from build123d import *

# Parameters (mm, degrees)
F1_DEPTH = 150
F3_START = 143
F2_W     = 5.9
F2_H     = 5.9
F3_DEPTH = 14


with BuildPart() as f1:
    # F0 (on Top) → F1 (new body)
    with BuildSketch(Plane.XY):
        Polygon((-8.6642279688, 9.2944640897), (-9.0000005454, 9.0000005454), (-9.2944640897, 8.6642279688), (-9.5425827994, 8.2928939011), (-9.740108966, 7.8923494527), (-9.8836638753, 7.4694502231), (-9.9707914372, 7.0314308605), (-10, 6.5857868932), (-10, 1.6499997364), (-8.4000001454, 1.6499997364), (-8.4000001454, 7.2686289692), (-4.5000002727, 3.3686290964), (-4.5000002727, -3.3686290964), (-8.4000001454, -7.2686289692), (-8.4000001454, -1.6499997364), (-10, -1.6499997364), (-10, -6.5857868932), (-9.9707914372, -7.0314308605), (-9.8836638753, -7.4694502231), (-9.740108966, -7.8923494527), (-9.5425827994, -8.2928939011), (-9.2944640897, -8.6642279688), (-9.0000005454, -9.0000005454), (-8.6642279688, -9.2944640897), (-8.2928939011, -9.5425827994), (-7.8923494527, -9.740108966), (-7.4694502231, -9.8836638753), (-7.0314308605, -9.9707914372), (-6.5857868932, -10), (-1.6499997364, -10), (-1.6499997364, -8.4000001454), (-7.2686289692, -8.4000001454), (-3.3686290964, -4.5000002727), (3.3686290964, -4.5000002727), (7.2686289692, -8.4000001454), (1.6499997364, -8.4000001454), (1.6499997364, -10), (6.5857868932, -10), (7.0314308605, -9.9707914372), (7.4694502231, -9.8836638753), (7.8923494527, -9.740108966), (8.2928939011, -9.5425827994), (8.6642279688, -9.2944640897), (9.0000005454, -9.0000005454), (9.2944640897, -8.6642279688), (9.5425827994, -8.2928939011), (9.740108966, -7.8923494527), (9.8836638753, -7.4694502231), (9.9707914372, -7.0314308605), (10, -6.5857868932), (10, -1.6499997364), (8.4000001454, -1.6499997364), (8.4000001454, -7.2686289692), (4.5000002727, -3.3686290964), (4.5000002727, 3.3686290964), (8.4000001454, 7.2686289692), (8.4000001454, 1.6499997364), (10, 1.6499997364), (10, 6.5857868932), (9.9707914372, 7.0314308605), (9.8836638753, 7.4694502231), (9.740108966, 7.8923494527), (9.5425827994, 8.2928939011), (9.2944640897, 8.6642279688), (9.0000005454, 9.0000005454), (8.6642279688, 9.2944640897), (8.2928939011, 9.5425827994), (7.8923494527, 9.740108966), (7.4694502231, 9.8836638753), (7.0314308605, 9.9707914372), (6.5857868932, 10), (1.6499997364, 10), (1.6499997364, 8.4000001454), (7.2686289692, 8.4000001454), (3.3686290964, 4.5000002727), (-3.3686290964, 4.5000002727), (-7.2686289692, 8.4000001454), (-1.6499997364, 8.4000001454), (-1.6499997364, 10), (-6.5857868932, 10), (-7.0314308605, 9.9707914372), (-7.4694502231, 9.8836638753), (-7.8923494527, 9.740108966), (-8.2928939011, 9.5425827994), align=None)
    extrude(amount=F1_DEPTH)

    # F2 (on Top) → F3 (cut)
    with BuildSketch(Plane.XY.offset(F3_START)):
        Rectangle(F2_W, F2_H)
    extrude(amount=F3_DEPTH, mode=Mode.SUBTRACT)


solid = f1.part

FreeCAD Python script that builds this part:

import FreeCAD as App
import Part
import Sketcher

doc = App.newDocument("Part")
body = doc.addObject("PartDesign::Body", "Body")

sketch1 = body.newObject("Sketcher::SketchObject", "Sketch")
sketch1.AttachmentSupport = (doc.getObject("XY_Plane"), [""])
sketch1.MapMode = "FlatFace"
sketch1.addGeometry(Part.LineSegment(App.Vector(-8.664228, 9.294464, 0), App.Vector(-9.000001, 9.000001, 0)), False)
sketch1.addGeometry(Part.LineSegment(App.Vector(-9.000001, 9.000001, 0), App.Vector(-9.294464, 8.664228, 0)), False)
sketch1.addGeometry(Part.LineSegment(App.Vector(-9.294464, 8.664228, 0), App.Vector(-9.542583, 8.292894, 0)), False)
sketch1.addGeometry(Part.LineSegment(App.Vector(-9.542583, 8.292894, 0), App.Vector(-9.740109, 7.892349, 0)), False)
sketch1.addGeometry(Part.LineSegment(App.Vector(-9.740109, 7.892349, 0), App.Vector(-9.883664, 7.46945, 0)), False)
sketch1.addGeometry(Part.LineSegment(App.Vector(-9.883664, 7.46945, 0), App.Vector(-9.970791, 7.031431, 0)), False)
sketch1.addGeometry(Part.LineSegment(App.Vector(-9.970791, 7.031431, 0), App.Vector(-10, 6.585787, 0)), False)
sketch1.addGeometry(Part.LineSegment(App.Vector(-10, 6.585787, 0), App.Vector(-10, 1.65, 0)), False)
sketch1.addGeometry(Part.LineSegment(App.Vector(-10, 1.65, 0), App.Vector(-8.4, 1.65, 0)), False)
sketch1.addGeometry(Part.LineSegment(App.Vector(-8.4, 1.65, 0), App.Vector(-8.4, 7.268629, 0)), False)
sketch1.addGeometry(Part.LineSegment(App.Vector(-8.4, 7.268629, 0), App.Vector(-4.5, 3.368629, 0)), False)
sketch1.addGeometry(Part.LineSegment(App.Vector(-4.5, 3.368629, 0), App.Vector(-4.5, -3.368629, 0)), False)
sketch1.addGeometry(Part.LineSegment(App.Vector(-4.5, -3.368629, 0), App.Vector(-8.4, -7.268629, 0)), False)
sketch1.addGeometry(Part.LineSegment(App.Vector(-8.4, -7.268629, 0), App.Vector(-8.4, -1.65, 0)), False)
sketch1.addGeometry(Part.LineSegment(App.Vector(-8.4, -1.65, 0), App.Vector(-10, -1.65, 0)), False)
sketch1.addGeometry(Part.LineSegment(App.Vector(-10, -1.65, 0), App.Vector(-10, -6.585787, 0)), False)
sketch1.addGeometry(Part.LineSegment(App.Vector(-10, -6.585787, 0), App.Vector(-9.970791, -7.031431, 0)), False)
sketch1.addGeometry(Part.LineSegment(App.Vector(-9.970791, -7.031431, 0), App.Vector(-9.883664, -7.46945, 0)), False)
sketch1.addGeometry(Part.LineSegment(App.Vector(-9.883664, -7.46945, 0), App.Vector(-9.740109, -7.892349, 0)), False)
sketch1.addGeometry(Part.LineSegment(App.Vector(-9.740109, -7.892349, 0), App.Vector(-9.542583, -8.292894, 0)), False)
sketch1.addGeometry(Part.LineSegment(App.Vector(-9.542583, -8.292894, 0), App.Vector(-9.294464, -8.664228, 0)), False)
sketch1.addGeometry(Part.LineSegment(App.Vector(-9.294464, -8.664228, 0), App.Vector(-9.000001, -9.000001, 0)), False)
sketch1.addGeometry(Part.LineSegment(App.Vector(-9.000001, -9.000001, 0), App.Vector(-8.664228, -9.294464, 0)), False)
sketch1.addGeometry(Part.LineSegment(App.Vector(-8.664228, -9.294464, 0), App.Vector(-8.292894, -9.542583, 0)), False)
sketch1.addGeometry(Part.LineSegment(App.Vector(-8.292894, -9.542583, 0), App.Vector(-7.892349, -9.740109, 0)), False)
sketch1.addGeometry(Part.LineSegment(App.Vector(-7.892349, -9.740109, 0), App.Vector(-7.46945, -9.883664, 0)), False)
sketch1.addGeometry(Part.LineSegment(App.Vector(-7.46945, -9.883664, 0), App.Vector(-7.031431, -9.970791, 0)), False)
sketch1.addGeometry(Part.LineSegment(App.Vector(-7.031431, -9.970791, 0), App.Vector(-6.585787, -10, 0)), False)
sketch1.addGeometry(Part.LineSegment(App.Vector(-6.585787, -10, 0), App.Vector(-1.65, -10, 0)), False)
sketch1.addGeometry(Part.LineSegment(App.Vector(-1.65, -10, 0), App.Vector(-1.65, -8.4, 0)), False)
sketch1.addGeometry(Part.LineSegment(App.Vector(-1.65, -8.4, 0), App.Vector(-7.268629, -8.4, 0)), False)
sketch1.addGeometry(Part.LineSegment(App.Vector(-7.268629, -8.4, 0), App.Vector(-3.368629, -4.5, 0)), False)
sketch1.addGeometry(Part.LineSegment(App.Vector(-3.368629, -4.5, 0), App.Vector(3.368629, -4.5, 0)), False)
sketch1.addGeometry(Part.LineSegment(App.Vector(3.368629, -4.5, 0), App.Vector(7.268629, -8.4, 0)), False)
sketch1.addGeometry(Part.LineSegment(App.Vector(7.268629, -8.4, 0), App.Vector(1.65, -8.4, 0)), False)
sketch1.addGeometry(Part.LineSegment(App.Vector(1.65, -8.4, 0), App.Vector(1.65, -10, 0)), False)
sketch1.addGeometry(Part.LineSegment(App.Vector(1.65, -10, 0), App.Vector(6.585787, -10, 0)), False)
sketch1.addGeometry(Part.LineSegment(App.Vector(6.585787, -10, 0), App.Vector(7.031431, -9.970791, 0)), False)
sketch1.addGeometry(Part.LineSegment(App.Vector(7.031431, -9.970791, 0), App.Vector(7.46945, -9.883664, 0)), False)
sketch1.addGeometry(Part.LineSegment(App.Vector(7.46945, -9.883664, 0), App.Vector(7.892349, -9.740109, 0)), False)
sketch1.addGeometry(Part.LineSegment(App.Vector(7.892349, -9.740109, 0), App.Vector(8.292894, -9.542583, 0)), False)
sketch1.addGeometry(Part.LineSegment(App.Vector(8.292894, -9.542583, 0), App.Vector(8.664228, -9.294464, 0)), False)
sketch1.addGeometry(Part.LineSegment(App.Vector(8.664228, -9.294464, 0), App.Vector(9.000001, -9.000001, 0)), False)
sketch1.addGeometry(Part.LineSegment(App.Vector(9.000001, -9.000001, 0), App.Vector(9.294464, -8.664228, 0)), False)
sketch1.addGeometry(Part.LineSegment(App.Vector(9.294464, -8.664228, 0), App.Vector(9.542583, -8.292894, 0)), False)
sketch1.addGeometry(Part.LineSegment(App.Vector(9.542583, -8.292894, 0), App.Vector(9.740109, -7.892349, 0)), False)
sketch1.addGeometry(Part.LineSegment(App.Vector(9.740109, -7.892349, 0), App.Vector(9.883664, -7.46945, 0)), False)
sketch1.addGeometry(Part.LineSegment(App.Vector(9.883664, -7.46945, 0), App.Vector(9.970791, -7.031431, 0)), False)
sketch1.addGeometry(Part.LineSegment(App.Vector(9.970791, -7.031431, 0), App.Vector(10, -6.585787, 0)), False)
sketch1.addGeometry(Part.LineSegment(App.Vector(10, -6.585787, 0), App.Vector(10, -1.65, 0)), False)
sketch1.addGeometry(Part.LineSegment(App.Vector(10, -1.65, 0), App.Vector(8.4, -1.65, 0)), False)
sketch1.addGeometry(Part.LineSegment(App.Vector(8.4, -1.65, 0), App.Vector(8.4, -7.268629, 0)), False)
sketch1.addGeometry(Part.LineSegment(App.Vector(8.4, -7.268629, 0), App.Vector(4.5, -3.368629, 0)), False)
sketch1.addGeometry(Part.LineSegment(App.Vector(4.5, -3.368629, 0), App.Vector(4.5, 3.368629, 0)), False)
sketch1.addGeometry(Part.LineSegment(App.Vector(4.5, 3.368629, 0), App.Vector(8.4, 7.268629, 0)), False)
sketch1.addGeometry(Part.LineSegment(App.Vector(8.4, 7.268629, 0), App.Vector(8.4, 1.65, 0)), False)
sketch1.addGeometry(Part.LineSegment(App.Vector(8.4, 1.65, 0), App.Vector(10, 1.65, 0)), False)
sketch1.addGeometry(Part.LineSegment(App.Vector(10, 1.65, 0), App.Vector(10, 6.585787, 0)), False)
sketch1.addGeometry(Part.LineSegment(App.Vector(10, 6.585787, 0), App.Vector(9.970791, 7.031431, 0)), False)
sketch1.addGeometry(Part.LineSegment(App.Vector(9.970791, 7.031431, 0), App.Vector(9.883664, 7.46945, 0)), False)
sketch1.addGeometry(Part.LineSegment(App.Vector(9.883664, 7.46945, 0), App.Vector(9.740109, 7.892349, 0)), False)
sketch1.addGeometry(Part.LineSegment(App.Vector(9.740109, 7.892349, 0), App.Vector(9.542583, 8.292894, 0)), False)
sketch1.addGeometry(Part.LineSegment(App.Vector(9.542583, 8.292894, 0), App.Vector(9.294464, 8.664228, 0)), False)
sketch1.addGeometry(Part.LineSegment(App.Vector(9.294464, 8.664228, 0), App.Vector(9.000001, 9.000001, 0)), False)
sketch1.addGeometry(Part.LineSegment(App.Vector(9.000001, 9.000001, 0), App.Vector(8.664228, 9.294464, 0)), False)
sketch1.addGeometry(Part.LineSegment(App.Vector(8.664228, 9.294464, 0), App.Vector(8.292894, 9.542583, 0)), False)
sketch1.addGeometry(Part.LineSegment(App.Vector(8.292894, 9.542583, 0), App.Vector(7.892349, 9.740109, 0)), False)
sketch1.addGeometry(Part.LineSegment(App.Vector(7.892349, 9.740109, 0), App.Vector(7.46945, 9.883664, 0)), False)
sketch1.addGeometry(Part.LineSegment(App.Vector(7.46945, 9.883664, 0), App.Vector(7.031431, 9.970791, 0)), False)
sketch1.addGeometry(Part.LineSegment(App.Vector(7.031431, 9.970791, 0), App.Vector(6.585787, 10, 0)), False)
sketch1.addGeometry(Part.LineSegment(App.Vector(6.585787, 10, 0), App.Vector(1.65, 10, 0)), False)
sketch1.addGeometry(Part.LineSegment(App.Vector(1.65, 10, 0), App.Vector(1.65, 8.4, 0)), False)
sketch1.addGeometry(Part.LineSegment(App.Vector(1.65, 8.4, 0), App.Vector(7.268629, 8.4, 0)), False)
sketch1.addGeometry(Part.LineSegment(App.Vector(7.268629, 8.4, 0), App.Vector(3.368629, 4.5, 0)), False)
sketch1.addGeometry(Part.LineSegment(App.Vector(3.368629, 4.5, 0), App.Vector(-3.368629, 4.5, 0)), False)
sketch1.addGeometry(Part.LineSegment(App.Vector(-3.368629, 4.5, 0), App.Vector(-7.268629, 8.4, 0)), False)
sketch1.addGeometry(Part.LineSegment(App.Vector(-7.268629, 8.4, 0), App.Vector(-1.65, 8.4, 0)), False)
sketch1.addGeometry(Part.LineSegment(App.Vector(-1.65, 8.4, 0), App.Vector(-1.65, 10, 0)), False)
sketch1.addGeometry(Part.LineSegment(App.Vector(-1.65, 10, 0), App.Vector(-6.585787, 10, 0)), False)
sketch1.addGeometry(Part.LineSegment(App.Vector(-6.585787, 10, 0), App.Vector(-7.031431, 9.970791, 0)), False)
sketch1.addGeometry(Part.LineSegment(App.Vector(-7.031431, 9.970791, 0), App.Vector(-7.46945, 9.883664, 0)), False)
sketch1.addGeometry(Part.LineSegment(App.Vector(-7.46945, 9.883664, 0), App.Vector(-7.892349, 9.740109, 0)), False)
sketch1.addGeometry(Part.LineSegment(App.Vector(-7.892349, 9.740109, 0), App.Vector(-8.292894, 9.542583, 0)), False)
sketch1.addGeometry(Part.LineSegment(App.Vector(-8.292894, 9.542583, 0), App.Vector(-8.664228, 9.294464, 0)), False)
sketch1.addConstraint(Sketcher.Constraint("Coincident", 0, 2, 1, 1))
sketch1.addConstraint(Sketcher.Constraint("Coincident", 1, 2, 2, 1))
sketch1.addConstraint(Sketcher.Constraint("Coincident", 2, 2, 3, 1))
sketch1.addConstraint(Sketcher.Constraint("Coincident", 3, 2, 4, 1))
sketch1.addConstraint(Sketcher.Constraint("Coincident", 4, 2, 5, 1))
sketch1.addConstraint(Sketcher.Constraint("Coincident", 5, 2, 6, 1))
sketch1.addConstraint(Sketcher.Constraint("Coincident", 6, 2, 7, 1))
sketch1.addConstraint(Sketcher.Constraint("Coincident", 7, 2, 8, 1))
sketch1.addConstraint(Sketcher.Constraint("Coincident", 8, 2, 9, 1))
sketch1.addConstraint(Sketcher.Constraint("Coincident", 9, 2, 10, 1))
sketch1.addConstraint(Sketcher.Constraint("Coincident", 10, 2, 11, 1))
sketch1.addConstraint(Sketcher.Constraint("Coincident", 11, 2, 12, 1))
sketch1.addConstraint(Sketcher.Constraint("Coincident", 12, 2, 13, 1))
sketch1.addConstraint(Sketcher.Constraint("Coincident", 13, 2, 14, 1))
sketch1.addConstraint(Sketcher.Constraint("Coincident", 14, 2, 15, 1))
sketch1.addConstraint(Sketcher.Constraint("Coincident", 15, 2, 16, 1))
sketch1.addConstraint(Sketcher.Constraint("Coincident", 16, 2, 17, 1))
sketch1.addConstraint(Sketcher.Constraint("Coincident", 17, 2, 18, 1))
sketch1.addConstraint(Sketcher.Constraint("Coincident", 18, 2, 19, 1))
sketch1.addConstraint(Sketcher.Constraint("Coincident", 19, 2, 20, 1))
sketch1.addConstraint(Sketcher.Constraint("Coincident", 20, 2, 21, 1))
sketch1.addConstraint(Sketcher.Constraint("Coincident", 21, 2, 22, 1))
sketch1.addConstraint(Sketcher.Constraint("Coincident", 22, 2, 23, 1))
sketch1.addConstraint(Sketcher.Constraint("Coincident", 23, 2, 24, 1))
sketch1.addConstraint(Sketcher.Constraint("Coincident", 24, 2, 25, 1))
sketch1.addConstraint(Sketcher.Constraint("Coincident", 25, 2, 26, 1))
sketch1.addConstraint(Sketcher.Constraint("Coincident", 26, 2, 27, 1))
sketch1.addConstraint(Sketcher.Constraint("Coincident", 27, 2, 28, 1))
sketch1.addConstraint(Sketcher.Constraint("Coincident", 28, 2, 29, 1))
sketch1.addConstraint(Sketcher.Constraint("Coincident", 29, 2, 30, 1))
sketch1.addConstraint(Sketcher.Constraint("Coincident", 30, 2, 31, 1))
sketch1.addConstraint(Sketcher.Constraint("Coincident", 31, 2, 32, 1))
sketch1.addConstraint(Sketcher.Constraint("Coincident", 32, 2, 33, 1))
sketch1.addConstraint(Sketcher.Constraint("Coincident", 33, 2, 34, 1))
sketch1.addConstraint(Sketcher.Constraint("Coincident", 34, 2, 35, 1))
sketch1.addConstraint(Sketcher.Constraint("Coincident", 35, 2, 36, 1))
sketch1.addConstraint(Sketcher.Constraint("Coincident", 36, 2, 37, 1))
sketch1.addConstraint(Sketcher.Constraint("Coincident", 37, 2, 38, 1))
sketch1.addConstraint(Sketcher.Constraint("Coincident", 38, 2, 39, 1))
sketch1.addConstraint(Sketcher.Constraint("Coincident", 39, 2, 40, 1))
sketch1.addConstraint(Sketcher.Constraint("Coincident", 40, 2, 41, 1))
sketch1.addConstraint(Sketcher.Constraint("Coincident", 41, 2, 42, 1))
sketch1.addConstraint(Sketcher.Constraint("Coincident", 42, 2, 43, 1))
sketch1.addConstraint(Sketcher.Constraint("Coincident", 43, 2, 44, 1))
sketch1.addConstraint(Sketcher.Constraint("Coincident", 44, 2, 45, 1))
sketch1.addConstraint(Sketcher.Constraint("Coincident", 45, 2, 46, 1))
sketch1.addConstraint(Sketcher.Constraint("Coincident", 46, 2, 47, 1))
sketch1.addConstraint(Sketcher.Constraint("Coincident", 47, 2, 48, 1))
sketch1.addConstraint(Sketcher.Constraint("Coincident", 48, 2, 49, 1))
sketch1.addConstraint(Sketcher.Constraint("Coincident", 49, 2, 50, 1))
sketch1.addConstraint(Sketcher.Constraint("Coincident", 50, 2, 51, 1))
sketch1.addConstraint(Sketcher.Constraint("Coincident", 51, 2, 52, 1))
sketch1.addConstraint(Sketcher.Constraint("Coincident", 52, 2, 53, 1))
sketch1.addConstraint(Sketcher.Constraint("Coincident", 53, 2, 54, 1))
sketch1.addConstraint(Sketcher.Constraint("Coincident", 54, 2, 55, 1))
sketch1.addConstraint(Sketcher.Constraint("Coincident", 55, 2, 56, 1))
sketch1.addConstraint(Sketcher.Constraint("Coincident", 56, 2, 57, 1))
sketch1.addConstraint(Sketcher.Constraint("Coincident", 57, 2, 58, 1))
sketch1.addConstraint(Sketcher.Constraint("Coincident", 58, 2, 59, 1))
sketch1.addConstraint(Sketcher.Constraint("Coincident", 59, 2, 60, 1))
sketch1.addConstraint(Sketcher.Constraint("Coincident", 60, 2, 61, 1))
sketch1.addConstraint(Sketcher.Constraint("Coincident", 61, 2, 62, 1))
sketch1.addConstraint(Sketcher.Constraint("Coincident", 62, 2, 63, 1))
sketch1.addConstraint(Sketcher.Constraint("Coincident", 63, 2, 64, 1))
sketch1.addConstraint(Sketcher.Constraint("Coincident", 64, 2, 65, 1))
sketch1.addConstraint(Sketcher.Constraint("Coincident", 65, 2, 66, 1))
sketch1.addConstraint(Sketcher.Constraint("Coincident", 66, 2, 67, 1))
sketch1.addConstraint(Sketcher.Constraint("Coincident", 67, 2, 68, 1))
sketch1.addConstraint(Sketcher.Constraint("Coincident", 68, 2, 69, 1))
sketch1.addConstraint(Sketcher.Constraint("Coincident", 69, 2, 70, 1))
sketch1.addConstraint(Sketcher.Constraint("Coincident", 70, 2, 71, 1))
sketch1.addConstraint(Sketcher.Constraint("Coincident", 71, 2, 72, 1))
sketch1.addConstraint(Sketcher.Constraint("Coincident", 72, 2, 73, 1))
sketch1.addConstraint(Sketcher.Constraint("Coincident", 73, 2, 74, 1))
sketch1.addConstraint(Sketcher.Constraint("Coincident", 74, 2, 75, 1))
sketch1.addConstraint(Sketcher.Constraint("Coincident", 75, 2, 76, 1))
sketch1.addConstraint(Sketcher.Constraint("Coincident", 76, 2, 77, 1))
sketch1.addConstraint(Sketcher.Constraint("Coincident", 77, 2, 78, 1))
sketch1.addConstraint(Sketcher.Constraint("Coincident", 78, 2, 79, 1))
sketch1.addConstraint(Sketcher.Constraint("Coincident", 79, 2, 80, 1))
sketch1.addConstraint(Sketcher.Constraint("Coincident", 80, 2, 81, 1))
sketch1.addConstraint(Sketcher.Constraint("Coincident", 81, 2, 82, 1))
sketch1.addConstraint(Sketcher.Constraint("Coincident", 82, 2, 83, 1))
sketch1.addConstraint(Sketcher.Constraint("Coincident", 83, 2, 0, 1))
sketch1.addConstraint(Sketcher.Constraint("Vertical", 7))
sketch1.addConstraint(Sketcher.Constraint("Horizontal", 8))
sketch1.addConstraint(Sketcher.Constraint("Vertical", 9))
sketch1.addConstraint(Sketcher.Constraint("Vertical", 11))
sketch1.addConstraint(Sketcher.Constraint("Vertical", 13))
sketch1.addConstraint(Sketcher.Constraint("Horizontal", 14))
sketch1.addConstraint(Sketcher.Constraint("Vertical", 15))
sketch1.addConstraint(Sketcher.Constraint("Horizontal", 28))
sketch1.addConstraint(Sketcher.Constraint("Vertical", 29))
sketch1.addConstraint(Sketcher.Constraint("Horizontal", 30))
sketch1.addConstraint(Sketcher.Constraint("Horizontal", 32))
sketch1.addConstraint(Sketcher.Constraint("Horizontal", 34))
sketch1.addConstraint(Sketcher.Constraint("Vertical", 35))
sketch1.addConstraint(Sketcher.Constraint("Horizontal", 36))
sketch1.addConstraint(Sketcher.Constraint("Vertical", 49))
sketch1.addConstraint(Sketcher.Constraint("Horizontal", 50))
sketch1.addConstraint(Sketcher.Constraint("Vertical", 51))
sketch1.addConstraint(Sketcher.Constraint("Vertical", 53))
sketch1.addConstraint(Sketcher.Constraint("Vertical", 55))
sketch1.addConstraint(Sketcher.Constraint("Horizontal", 56))
sketch1.addConstraint(Sketcher.Constraint("Vertical", 57))
sketch1.addConstraint(Sketcher.Constraint("Horizontal", 70))
sketch1.addConstraint(Sketcher.Constraint("Vertical", 71))
sketch1.addConstraint(Sketcher.Constraint("Horizontal", 72))
sketch1.addConstraint(Sketcher.Constraint("Horizontal", 74))
sketch1.addConstraint(Sketcher.Constraint("Horizontal", 76))
sketch1.addConstraint(Sketcher.Constraint("Vertical", 77))
sketch1.addConstraint(Sketcher.Constraint("Horizontal", 78))
sketch1.addConstraint(Sketcher.Constraint("DistanceX", 8, 1, 8, 2, 1.6))
sketch1.addConstraint(Sketcher.Constraint("DistanceX", 14, 2, 14, 1, 1.6))
sketch1.addConstraint(Sketcher.Constraint("DistanceX", 50, 2, 50, 1, 1.6))
sketch1.addConstraint(Sketcher.Constraint("DistanceX", 56, 1, 56, 2, 1.6))
sketch1.addConstraint(Sketcher.Constraint("DistanceY", 29, 1, 29, 2, 1.6))
sketch1.addConstraint(Sketcher.Constraint("DistanceY", 35, 2, 35, 1, 1.6))
sketch1.addConstraint(Sketcher.Constraint("DistanceY", 71, 2, 71, 1, 1.6))
sketch1.addConstraint(Sketcher.Constraint("DistanceY", 77, 1, 77, 2, 1.6))
sketch1.addConstraint(Sketcher.Constraint("DistanceX", 0, 2, -1, 1, 9.000001))
sketch1.addConstraint(Sketcher.Constraint("DistanceY", -1, 1, 0, 2, 9.000001))
sketch1.addConstraint(Sketcher.Constraint("DistanceX", 6, 2, -1, 1, 10.0))
sketch1.addConstraint(Sketcher.Constraint("DistanceX", 14, 2, -1, 1, 10.0))
sketch1.addConstraint(Sketcher.Constraint("DistanceX", 21, 2, -1, 1, 9.000001))
sketch1.addConstraint(Sketcher.Constraint("DistanceY", 21, 2, -1, 1, 9.000001))
sketch1.addConstraint(Sketcher.Constraint("DistanceY", 27, 2, -1, 1, 10.0))
sketch1.addConstraint(Sketcher.Constraint("DistanceY", 35, 2, -1, 1, 10.0))
sketch1.addConstraint(Sketcher.Constraint("DistanceX", -1, 1, 42, 2, 9.000001))
sketch1.addConstraint(Sketcher.Constraint("DistanceY", 42, 2, -1, 1, 9.000001))
sketch1.addConstraint(Sketcher.Constraint("DistanceX", -1, 1, 48, 2, 10.0))
sketch1.addConstraint(Sketcher.Constraint("DistanceX", -1, 1, 56, 2, 10.0))
sketch1.addConstraint(Sketcher.Constraint("DistanceX", -1, 1, 63, 2, 9.000001))
sketch1.addConstraint(Sketcher.Constraint("DistanceY", -1, 1, 63, 2, 9.000001))
sketch1.addConstraint(Sketcher.Constraint("DistanceY", -1, 1, 69, 2, 10.0))
sketch1.addConstraint(Sketcher.Constraint("DistanceY", -1, 1, 77, 2, 10.0))
sketch1.addConstraint(Sketcher.Constraint("DistanceX", 10, 2, -1, 1, 4.5))
sketch1.addConstraint(Sketcher.Constraint("DistanceY", 31, 2, -1, 1, 4.5))
sketch1.addConstraint(Sketcher.Constraint("DistanceX", -1, 1, 52, 2, 4.5))
sketch1.addConstraint(Sketcher.Constraint("DistanceY", -1, 1, 73, 2, 4.5))
sketch1.addConstraint(Sketcher.Constraint("DistanceY", -1, 1, 7, 2, 1.65))
sketch1.addConstraint(Sketcher.Constraint("DistanceY", 13, 2, -1, 1, 1.65))
sketch1.addConstraint(Sketcher.Constraint("DistanceX", 28, 2, -1, 1, 1.65))
sketch1.addConstraint(Sketcher.Constraint("DistanceX", -1, 1, 34, 2, 1.65))
sketch1.addConstraint(Sketcher.Constraint("DistanceY", 49, 2, -1, 1, 1.65))
sketch1.addConstraint(Sketcher.Constraint("DistanceY", -1, 1, 55, 2, 1.65))
sketch1.addConstraint(Sketcher.Constraint("DistanceX", -1, 1, 70, 2, 1.65))
sketch1.addConstraint(Sketcher.Constraint("DistanceX", 76, 2, -1, 1, 1.65))
sketch1.addConstraint(Sketcher.Constraint("Distance", 0, 0.4466))
sketch1.addConstraint(Sketcher.Constraint("Distance", 1, 0.4466))
sketch1.addConstraint(Sketcher.Constraint("Distance", 2, 0.4466))
sketch1.addConstraint(Sketcher.Constraint("Distance", 3, 0.446601))
sketch1.addConstraint(Sketcher.Constraint("Distance", 4, 0.4466))
sketch1.addConstraint(Sketcher.Constraint("Distance", 5, 0.446601))
sketch1.addConstraint(Sketcher.Constraint("Distance", 6, 0.4466))
sketch1.addConstraint(Sketcher.Constraint("Distance", 16, 0.4466))
sketch1.addConstraint(Sketcher.Constraint("Distance", 17, 0.446601))
sketch1.addConstraint(Sketcher.Constraint("Distance", 18, 0.4466))
sketch1.addConstraint(Sketcher.Constraint("Distance", 19, 0.446601))
sketch1.addConstraint(Sketcher.Constraint("Distance", 20, 0.4466))
sketch1.addConstraint(Sketcher.Constraint("Distance", 21, 0.4466))
sketch1.addConstraint(Sketcher.Constraint("Distance", 22, 0.4466))
sketch1.addConstraint(Sketcher.Constraint("Distance", 23, 0.4466))
sketch1.addConstraint(Sketcher.Constraint("Distance", 24, 0.446601))
sketch1.addConstraint(Sketcher.Constraint("Distance", 25, 0.4466))
sketch1.addConstraint(Sketcher.Constraint("Distance", 26, 0.446601))
sketch1.addConstraint(Sketcher.Constraint("Distance", 27, 0.4466))
sketch1.addConstraint(Sketcher.Constraint("Distance", 37, 0.4466))
sketch1.addConstraint(Sketcher.Constraint("Distance", 38, 0.446601))
sketch1.addConstraint(Sketcher.Constraint("Distance", 39, 0.4466))
sketch1.addConstraint(Sketcher.Constraint("Distance", 40, 0.446601))
sketch1.addConstraint(Sketcher.Constraint("Distance", 41, 0.4466))
sketch1.addConstraint(Sketcher.Constraint("Distance", 42, 0.4466))
sketch1.addConstraint(Sketcher.Constraint("Distance", 43, 0.4466))
sketch1.addConstraint(Sketcher.Constraint("Distance", 44, 0.4466))
sketch1.addConstraint(Sketcher.Constraint("Distance", 45, 0.446601))
sketch1.addConstraint(Sketcher.Constraint("Distance", 46, 0.4466))
sketch1.addConstraint(Sketcher.Constraint("Distance", 47, 0.446601))
sketch1.addConstraint(Sketcher.Constraint("Distance", 48, 0.4466))
sketch1.addConstraint(Sketcher.Constraint("Distance", 58, 0.4466))
sketch1.addConstraint(Sketcher.Constraint("Distance", 59, 0.446601))
sketch1.addConstraint(Sketcher.Constraint("Distance", 60, 0.4466))
sketch1.addConstraint(Sketcher.Constraint("Distance", 61, 0.446601))
sketch1.addConstraint(Sketcher.Constraint("Distance", 62, 0.4466))
sketch1.addConstraint(Sketcher.Constraint("Distance", 63, 0.4466))
sketch1.addConstraint(Sketcher.Constraint("Distance", 64, 0.4466))
sketch1.addConstraint(Sketcher.Constraint("Distance", 65, 0.4466))
sketch1.addConstraint(Sketcher.Constraint("Distance", 66, 0.446601))
sketch1.addConstraint(Sketcher.Constraint("Distance", 67, 0.4466))
sketch1.addConstraint(Sketcher.Constraint("Distance", 68, 0.446601))
sketch1.addConstraint(Sketcher.Constraint("Distance", 69, 0.4466))
sketch1.addConstraint(Sketcher.Constraint("Distance", 79, 0.4466))
sketch1.addConstraint(Sketcher.Constraint("Distance", 80, 0.446601))
sketch1.addConstraint(Sketcher.Constraint("Distance", 81, 0.4466))
sketch1.addConstraint(Sketcher.Constraint("Distance", 82, 0.446601))
sketch1.addConstraint(Sketcher.Constraint("Distance", 83, 0.4466))
sketch1.addConstraint(Sketcher.Constraint("DistanceX", 30, 2, 30, 1, 5.618629))
sketch1.addConstraint(Sketcher.Constraint("DistanceX", 32, 1, 32, 2, 6.737258))
sketch1.addConstraint(Sketcher.Constraint("DistanceX", 34, 2, 34, 1, 5.618629))
sketch1.addConstraint(Sketcher.Constraint("DistanceX", 72, 1, 72, 2, 5.618629))
sketch1.addConstraint(Sketcher.Constraint("DistanceX", 74, 2, 74, 1, 6.737258))
sketch1.addConstraint(Sketcher.Constraint("DistanceX", 76, 1, 76, 2, 5.618629))
sketch1.addConstraint(Sketcher.Constraint("DistanceY", 9, 1, 9, 2, 5.618629))
sketch1.addConstraint(Sketcher.Constraint("DistanceY", 11, 2, 11, 1, 6.737258))
sketch1.addConstraint(Sketcher.Constraint("DistanceY", 13, 1, 13, 2, 5.618629))
sketch1.addConstraint(Sketcher.Constraint("DistanceY", 51, 2, 51, 1, 5.618629))
sketch1.addConstraint(Sketcher.Constraint("DistanceY", 53, 1, 53, 2, 6.737258))
sketch1.addConstraint(Sketcher.Constraint("DistanceY", 55, 2, 55, 1, 5.618629))
sketch1.addConstraint(Sketcher.Constraint("DistanceX", 28, 1, 28, 2, 4.935787))
sketch1.addConstraint(Sketcher.Constraint("DistanceX", 36, 1, 36, 2, 4.935787))
sketch1.addConstraint(Sketcher.Constraint("DistanceX", 70, 2, 70, 1, 4.935787))
sketch1.addConstraint(Sketcher.Constraint("DistanceX", 78, 2, 78, 1, 4.935787))
sketch1.addConstraint(Sketcher.Constraint("DistanceY", 7, 2, 7, 1, 4.935787))
sketch1.addConstraint(Sketcher.Constraint("DistanceY", 15, 2, 15, 1, 4.935787))
sketch1.addConstraint(Sketcher.Constraint("DistanceY", 49, 1, 49, 2, 4.935787))
sketch1.addConstraint(Sketcher.Constraint("DistanceY", 57, 1, 57, 2, 4.935787))
sketch1.addConstraint(Sketcher.Constraint("DistanceX", 3, 2, -1, 1, 9.740109))
sketch1.addConstraint(Sketcher.Constraint("DistanceY", -1, 1, 3, 2, 7.892349))
sketch1.addConstraint(Sketcher.Constraint("DistanceY", -1, 1, 4, 2, 7.46945))
sketch1.addConstraint(Sketcher.Constraint("DistanceY", -1, 1, 10, 2, 3.368629))
sketch1.addConstraint(Sketcher.Constraint("DistanceX", 16, 2, -1, 1, 9.970791))
sketch1.addConstraint(Sketcher.Constraint("DistanceY", 17, 2, -1, 1, 7.46945))
sketch1.addConstraint(Sketcher.Constraint("DistanceX", 18, 2, -1, 1, 9.740109))
sketch1.addConstraint(Sketcher.Constraint("DistanceX", 24, 2, -1, 1, 7.892349))
sketch1.addConstraint(Sketcher.Constraint("DistanceY", 24, 2, -1, 1, 9.740109))
sketch1.addConstraint(Sketcher.Constraint("DistanceX", 25, 2, -1, 1, 7.46945))
sketch1.addConstraint(Sketcher.Constraint("DistanceX", 31, 2, -1, 1, 3.368629))
sketch1.addConstraint(Sketcher.Constraint("DistanceX", -1, 1, 37, 2, 7.031431))
sketch1.addConstraint(Sketcher.Constraint("DistanceX", -1, 1, 38, 2, 7.46945))
sketch1.addConstraint(Sketcher.Constraint("DistanceX", -1, 1, 39, 2, 7.892349))
sketch1.addConstraint(Sketcher.Constraint("DistanceX", -1, 1, 45, 2, 9.740109))
sketch1.addConstraint(Sketcher.Constraint("DistanceY", 45, 2, -1, 1, 7.892349))
sketch1.addConstraint(Sketcher.Constraint("DistanceY", 46, 2, -1, 1, 7.46945))
sketch1.addConstraint(Sketcher.Constraint("DistanceY", 52, 2, -1, 1, 3.368629))
sketch1.addConstraint(Sketcher.Constraint("DistanceX", -1, 1, 58, 2, 9.970791))
sketch1.addConstraint(Sketcher.Constraint("DistanceY", -1, 1, 59, 2, 7.46945))
sketch1.addConstraint(Sketcher.Constraint("DistanceX", -1, 1, 60, 2, 9.740109))
sketch1.addConstraint(Sketcher.Constraint("DistanceX", -1, 1, 66, 2, 7.892349))
sketch1.addConstraint(Sketcher.Constraint("DistanceY", -1, 1, 66, 2, 9.740109))
sketch1.addConstraint(Sketcher.Constraint("DistanceX", -1, 1, 67, 2, 7.46945))
sketch1.addConstraint(Sketcher.Constraint("DistanceX", -1, 1, 73, 2, 3.368629))
sketch1.addConstraint(Sketcher.Constraint("DistanceX", 79, 2, -1, 1, 7.031431))
sketch1.addConstraint(Sketcher.Constraint("DistanceX", 80, 2, -1, 1, 7.46945))
sketch1.addConstraint(Sketcher.Constraint("DistanceX", 81, 2, -1, 1, 7.892349))
sketch1.addConstraint(Sketcher.Constraint("DistanceX", 1, 2, -1, 1, 9.294464))
sketch1.addConstraint(Sketcher.Constraint("DistanceX", 19, 2, -1, 1, 9.542583))
sketch1.addConstraint(Sketcher.Constraint("DistanceX", 22, 2, -1, 1, 8.664228))
sketch1.addConstraint(Sketcher.Constraint("DistanceX", -1, 1, 40, 2, 8.292894))
sketch1.addConstraint(Sketcher.Constraint("DistanceX", -1, 1, 43, 2, 9.294464))
sketch1.addConstraint(Sketcher.Constraint("DistanceX", -1, 1, 61, 2, 9.542583))
sketch1.addConstraint(Sketcher.Constraint("DistanceX", -1, 1, 64, 2, 8.664228))
sketch1.addConstraint(Sketcher.Constraint("DistanceX", 82, 2, -1, 1, 8.292894))
pad1 = body.newObject("PartDesign::Pad", "Pad")
pad1.Profile = sketch1
pad1.Length = 150

sketch2 = body.newObject("Sketcher::SketchObject", "Sketch001")
sketch2.AttachmentSupport = (doc.getObject("XY_Plane"), [""])
sketch2.MapMode = "FlatFace"
sketch2.AttachmentOffset = App.Placement(App.Vector(0, 0, 143), App.Rotation())
sketch2.addGeometry(Part.LineSegment(App.Vector(-2.95, 2.95, 0), App.Vector(-2.95, -2.95, 0)), False)
sketch2.addGeometry(Part.LineSegment(App.Vector(-2.95, -2.95, 0), App.Vector(2.95, -2.95, 0)), False)
sketch2.addGeometry(Part.LineSegment(App.Vector(2.95, -2.95, 0), App.Vector(2.95, 2.95, 0)), False)
sketch2.addGeometry(Part.LineSegment(App.Vector(2.95, 2.95, 0), App.Vector(-2.95, 2.95, 0)), False)
sketch2.addConstraint(Sketcher.Constraint("Coincident", 0, 2, 1, 1))
sketch2.addConstraint(Sketcher.Constraint("Coincident", 1, 2, 2, 1))
sketch2.addConstraint(Sketcher.Constraint("Coincident", 2, 2, 3, 1))
sketch2.addConstraint(Sketcher.Constraint("Coincident", 3, 2, 0, 1))
sketch2.addConstraint(Sketcher.Constraint("Vertical", 0))
sketch2.addConstraint(Sketcher.Constraint("Horizontal", 1))
sketch2.addConstraint(Sketcher.Constraint("Vertical", 2))
sketch2.addConstraint(Sketcher.Constraint("Horizontal", 3))
sketch2.addConstraint(Sketcher.Constraint("Symmetric", 0, 2, 2, 2, -1, 1))
sketch2.addConstraint(Sketcher.Constraint("Equal", 3, 0))
sketch2.addConstraint(Sketcher.Constraint("DistanceX", 1, 1, 1, 2, 5.9))
pocket1 = body.newObject("PartDesign::Pocket", "Pocket")
pocket1.Profile = sketch2
pocket1.Length = 14
pocket1.Reversed = True

doc.recompute()
